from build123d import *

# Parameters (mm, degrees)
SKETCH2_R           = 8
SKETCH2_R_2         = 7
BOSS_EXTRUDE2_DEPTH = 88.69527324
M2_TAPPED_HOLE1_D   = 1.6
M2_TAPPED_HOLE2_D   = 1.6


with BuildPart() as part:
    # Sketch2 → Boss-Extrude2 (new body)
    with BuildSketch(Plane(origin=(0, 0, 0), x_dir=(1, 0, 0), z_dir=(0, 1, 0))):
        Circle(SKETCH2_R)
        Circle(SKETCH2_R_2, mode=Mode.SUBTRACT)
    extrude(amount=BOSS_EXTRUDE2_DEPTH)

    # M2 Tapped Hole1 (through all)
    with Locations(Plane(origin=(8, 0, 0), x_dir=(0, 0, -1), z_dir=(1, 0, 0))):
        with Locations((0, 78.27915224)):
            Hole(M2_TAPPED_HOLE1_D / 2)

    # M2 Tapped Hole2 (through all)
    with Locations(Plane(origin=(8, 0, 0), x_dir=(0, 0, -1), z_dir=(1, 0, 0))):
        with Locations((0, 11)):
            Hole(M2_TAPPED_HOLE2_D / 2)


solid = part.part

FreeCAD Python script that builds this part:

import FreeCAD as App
import Part
import Sketcher

V = App.Vector

doc = App.newDocument("Part")
body = doc.addObject("PartDesign::Body", "Body")

# Sketch on XZ plane
sketch1 = body.newObject("Sketcher::SketchObject", "Sketch")
sketch1.AttachmentSupport = (doc.getObject("XZ_Plane"), [""])
sketch1.MapMode = "FlatFace"
sketch1.addGeometry([
    Part.Circle(V(0, 0, 0), V(0, 0, 1), 8),
    Part.Circle(V(0, 0, 0), V(0, 0, 1), 7),
], False)
sketch1.addConstraint([
    Sketcher.Constraint("Coincident", 0, 3, -1, 1),
    Sketcher.Constraint("Coincident", 1, 3, -1, 1),
    Sketcher.Constraint("Diameter", 0, 16.0),
    Sketcher.Constraint("Diameter", 1, 14.0),
])
pad1 = body.newObject("PartDesign::Pad", "Pad")
pad1.Profile = sketch1
pad1.Length = 88.695273
pad1.Reversed = True

# Sketch on YZ plane
sketch2 = body.newObject("Sketcher::SketchObject", "Sketch001")
sketch2.AttachmentSupport = (doc.getObject("YZ_Plane"), [""])
sketch2.MapMode = "FlatFace"
sketch2.AttachmentOffset = App.Placement(V(0, 0, 8), App.Rotation())
sketch2.addGeometry(Part.Circle(V(78.279152, 0, 0), V(0, 0, 1), 0.8), False)
sketch2.addConstraint([
    Sketcher.Constraint("PointOnObject", 0, 3, -1),
    Sketcher.Constraint("Diameter", 0, 1.6),
    Sketcher.Constraint("DistanceX", -1, 1, 0, 3, 78.279152),
])
doc.recompute()
hole = body.newObject("PartDesign::Hole", "Hole")
hole.Profile = sketch2
hole.ThreadType = "None"
hole.Diameter = 1.6
hole.DepthType = "ThroughAll"

# Sketch on YZ plane
sketch3 = body.newObject("Sketcher::SketchObject", "Sketch002")
sketch3.AttachmentSupport = (doc.getObject("YZ_Plane"), [""])
sketch3.MapMode = "FlatFace"
sketch3.AttachmentOffset = App.Placement(V(0, 0, 8), App.Rotation())
sketch3.addGeometry(Part.Circle(V(11, 0, 0), V(0, 0, 1), 0.8), False)
sketch3.addConstraint([
    Sketcher.Constraint("PointOnObject", 0, 3, -1),
    Sketcher.Constraint("Diameter", 0, 1.6),
    Sketcher.Constraint("DistanceX", -1, 1, 0, 3, 11.0),
])
doc.recompute()
hole2 = body.newObject("PartDesign::Hole", "Hole001")
hole2.Profile = sketch3
hole2.ThreadType = "None"
hole2.Diameter = 1.6
hole2.DepthType = "ThroughAll"

doc.recompute()
